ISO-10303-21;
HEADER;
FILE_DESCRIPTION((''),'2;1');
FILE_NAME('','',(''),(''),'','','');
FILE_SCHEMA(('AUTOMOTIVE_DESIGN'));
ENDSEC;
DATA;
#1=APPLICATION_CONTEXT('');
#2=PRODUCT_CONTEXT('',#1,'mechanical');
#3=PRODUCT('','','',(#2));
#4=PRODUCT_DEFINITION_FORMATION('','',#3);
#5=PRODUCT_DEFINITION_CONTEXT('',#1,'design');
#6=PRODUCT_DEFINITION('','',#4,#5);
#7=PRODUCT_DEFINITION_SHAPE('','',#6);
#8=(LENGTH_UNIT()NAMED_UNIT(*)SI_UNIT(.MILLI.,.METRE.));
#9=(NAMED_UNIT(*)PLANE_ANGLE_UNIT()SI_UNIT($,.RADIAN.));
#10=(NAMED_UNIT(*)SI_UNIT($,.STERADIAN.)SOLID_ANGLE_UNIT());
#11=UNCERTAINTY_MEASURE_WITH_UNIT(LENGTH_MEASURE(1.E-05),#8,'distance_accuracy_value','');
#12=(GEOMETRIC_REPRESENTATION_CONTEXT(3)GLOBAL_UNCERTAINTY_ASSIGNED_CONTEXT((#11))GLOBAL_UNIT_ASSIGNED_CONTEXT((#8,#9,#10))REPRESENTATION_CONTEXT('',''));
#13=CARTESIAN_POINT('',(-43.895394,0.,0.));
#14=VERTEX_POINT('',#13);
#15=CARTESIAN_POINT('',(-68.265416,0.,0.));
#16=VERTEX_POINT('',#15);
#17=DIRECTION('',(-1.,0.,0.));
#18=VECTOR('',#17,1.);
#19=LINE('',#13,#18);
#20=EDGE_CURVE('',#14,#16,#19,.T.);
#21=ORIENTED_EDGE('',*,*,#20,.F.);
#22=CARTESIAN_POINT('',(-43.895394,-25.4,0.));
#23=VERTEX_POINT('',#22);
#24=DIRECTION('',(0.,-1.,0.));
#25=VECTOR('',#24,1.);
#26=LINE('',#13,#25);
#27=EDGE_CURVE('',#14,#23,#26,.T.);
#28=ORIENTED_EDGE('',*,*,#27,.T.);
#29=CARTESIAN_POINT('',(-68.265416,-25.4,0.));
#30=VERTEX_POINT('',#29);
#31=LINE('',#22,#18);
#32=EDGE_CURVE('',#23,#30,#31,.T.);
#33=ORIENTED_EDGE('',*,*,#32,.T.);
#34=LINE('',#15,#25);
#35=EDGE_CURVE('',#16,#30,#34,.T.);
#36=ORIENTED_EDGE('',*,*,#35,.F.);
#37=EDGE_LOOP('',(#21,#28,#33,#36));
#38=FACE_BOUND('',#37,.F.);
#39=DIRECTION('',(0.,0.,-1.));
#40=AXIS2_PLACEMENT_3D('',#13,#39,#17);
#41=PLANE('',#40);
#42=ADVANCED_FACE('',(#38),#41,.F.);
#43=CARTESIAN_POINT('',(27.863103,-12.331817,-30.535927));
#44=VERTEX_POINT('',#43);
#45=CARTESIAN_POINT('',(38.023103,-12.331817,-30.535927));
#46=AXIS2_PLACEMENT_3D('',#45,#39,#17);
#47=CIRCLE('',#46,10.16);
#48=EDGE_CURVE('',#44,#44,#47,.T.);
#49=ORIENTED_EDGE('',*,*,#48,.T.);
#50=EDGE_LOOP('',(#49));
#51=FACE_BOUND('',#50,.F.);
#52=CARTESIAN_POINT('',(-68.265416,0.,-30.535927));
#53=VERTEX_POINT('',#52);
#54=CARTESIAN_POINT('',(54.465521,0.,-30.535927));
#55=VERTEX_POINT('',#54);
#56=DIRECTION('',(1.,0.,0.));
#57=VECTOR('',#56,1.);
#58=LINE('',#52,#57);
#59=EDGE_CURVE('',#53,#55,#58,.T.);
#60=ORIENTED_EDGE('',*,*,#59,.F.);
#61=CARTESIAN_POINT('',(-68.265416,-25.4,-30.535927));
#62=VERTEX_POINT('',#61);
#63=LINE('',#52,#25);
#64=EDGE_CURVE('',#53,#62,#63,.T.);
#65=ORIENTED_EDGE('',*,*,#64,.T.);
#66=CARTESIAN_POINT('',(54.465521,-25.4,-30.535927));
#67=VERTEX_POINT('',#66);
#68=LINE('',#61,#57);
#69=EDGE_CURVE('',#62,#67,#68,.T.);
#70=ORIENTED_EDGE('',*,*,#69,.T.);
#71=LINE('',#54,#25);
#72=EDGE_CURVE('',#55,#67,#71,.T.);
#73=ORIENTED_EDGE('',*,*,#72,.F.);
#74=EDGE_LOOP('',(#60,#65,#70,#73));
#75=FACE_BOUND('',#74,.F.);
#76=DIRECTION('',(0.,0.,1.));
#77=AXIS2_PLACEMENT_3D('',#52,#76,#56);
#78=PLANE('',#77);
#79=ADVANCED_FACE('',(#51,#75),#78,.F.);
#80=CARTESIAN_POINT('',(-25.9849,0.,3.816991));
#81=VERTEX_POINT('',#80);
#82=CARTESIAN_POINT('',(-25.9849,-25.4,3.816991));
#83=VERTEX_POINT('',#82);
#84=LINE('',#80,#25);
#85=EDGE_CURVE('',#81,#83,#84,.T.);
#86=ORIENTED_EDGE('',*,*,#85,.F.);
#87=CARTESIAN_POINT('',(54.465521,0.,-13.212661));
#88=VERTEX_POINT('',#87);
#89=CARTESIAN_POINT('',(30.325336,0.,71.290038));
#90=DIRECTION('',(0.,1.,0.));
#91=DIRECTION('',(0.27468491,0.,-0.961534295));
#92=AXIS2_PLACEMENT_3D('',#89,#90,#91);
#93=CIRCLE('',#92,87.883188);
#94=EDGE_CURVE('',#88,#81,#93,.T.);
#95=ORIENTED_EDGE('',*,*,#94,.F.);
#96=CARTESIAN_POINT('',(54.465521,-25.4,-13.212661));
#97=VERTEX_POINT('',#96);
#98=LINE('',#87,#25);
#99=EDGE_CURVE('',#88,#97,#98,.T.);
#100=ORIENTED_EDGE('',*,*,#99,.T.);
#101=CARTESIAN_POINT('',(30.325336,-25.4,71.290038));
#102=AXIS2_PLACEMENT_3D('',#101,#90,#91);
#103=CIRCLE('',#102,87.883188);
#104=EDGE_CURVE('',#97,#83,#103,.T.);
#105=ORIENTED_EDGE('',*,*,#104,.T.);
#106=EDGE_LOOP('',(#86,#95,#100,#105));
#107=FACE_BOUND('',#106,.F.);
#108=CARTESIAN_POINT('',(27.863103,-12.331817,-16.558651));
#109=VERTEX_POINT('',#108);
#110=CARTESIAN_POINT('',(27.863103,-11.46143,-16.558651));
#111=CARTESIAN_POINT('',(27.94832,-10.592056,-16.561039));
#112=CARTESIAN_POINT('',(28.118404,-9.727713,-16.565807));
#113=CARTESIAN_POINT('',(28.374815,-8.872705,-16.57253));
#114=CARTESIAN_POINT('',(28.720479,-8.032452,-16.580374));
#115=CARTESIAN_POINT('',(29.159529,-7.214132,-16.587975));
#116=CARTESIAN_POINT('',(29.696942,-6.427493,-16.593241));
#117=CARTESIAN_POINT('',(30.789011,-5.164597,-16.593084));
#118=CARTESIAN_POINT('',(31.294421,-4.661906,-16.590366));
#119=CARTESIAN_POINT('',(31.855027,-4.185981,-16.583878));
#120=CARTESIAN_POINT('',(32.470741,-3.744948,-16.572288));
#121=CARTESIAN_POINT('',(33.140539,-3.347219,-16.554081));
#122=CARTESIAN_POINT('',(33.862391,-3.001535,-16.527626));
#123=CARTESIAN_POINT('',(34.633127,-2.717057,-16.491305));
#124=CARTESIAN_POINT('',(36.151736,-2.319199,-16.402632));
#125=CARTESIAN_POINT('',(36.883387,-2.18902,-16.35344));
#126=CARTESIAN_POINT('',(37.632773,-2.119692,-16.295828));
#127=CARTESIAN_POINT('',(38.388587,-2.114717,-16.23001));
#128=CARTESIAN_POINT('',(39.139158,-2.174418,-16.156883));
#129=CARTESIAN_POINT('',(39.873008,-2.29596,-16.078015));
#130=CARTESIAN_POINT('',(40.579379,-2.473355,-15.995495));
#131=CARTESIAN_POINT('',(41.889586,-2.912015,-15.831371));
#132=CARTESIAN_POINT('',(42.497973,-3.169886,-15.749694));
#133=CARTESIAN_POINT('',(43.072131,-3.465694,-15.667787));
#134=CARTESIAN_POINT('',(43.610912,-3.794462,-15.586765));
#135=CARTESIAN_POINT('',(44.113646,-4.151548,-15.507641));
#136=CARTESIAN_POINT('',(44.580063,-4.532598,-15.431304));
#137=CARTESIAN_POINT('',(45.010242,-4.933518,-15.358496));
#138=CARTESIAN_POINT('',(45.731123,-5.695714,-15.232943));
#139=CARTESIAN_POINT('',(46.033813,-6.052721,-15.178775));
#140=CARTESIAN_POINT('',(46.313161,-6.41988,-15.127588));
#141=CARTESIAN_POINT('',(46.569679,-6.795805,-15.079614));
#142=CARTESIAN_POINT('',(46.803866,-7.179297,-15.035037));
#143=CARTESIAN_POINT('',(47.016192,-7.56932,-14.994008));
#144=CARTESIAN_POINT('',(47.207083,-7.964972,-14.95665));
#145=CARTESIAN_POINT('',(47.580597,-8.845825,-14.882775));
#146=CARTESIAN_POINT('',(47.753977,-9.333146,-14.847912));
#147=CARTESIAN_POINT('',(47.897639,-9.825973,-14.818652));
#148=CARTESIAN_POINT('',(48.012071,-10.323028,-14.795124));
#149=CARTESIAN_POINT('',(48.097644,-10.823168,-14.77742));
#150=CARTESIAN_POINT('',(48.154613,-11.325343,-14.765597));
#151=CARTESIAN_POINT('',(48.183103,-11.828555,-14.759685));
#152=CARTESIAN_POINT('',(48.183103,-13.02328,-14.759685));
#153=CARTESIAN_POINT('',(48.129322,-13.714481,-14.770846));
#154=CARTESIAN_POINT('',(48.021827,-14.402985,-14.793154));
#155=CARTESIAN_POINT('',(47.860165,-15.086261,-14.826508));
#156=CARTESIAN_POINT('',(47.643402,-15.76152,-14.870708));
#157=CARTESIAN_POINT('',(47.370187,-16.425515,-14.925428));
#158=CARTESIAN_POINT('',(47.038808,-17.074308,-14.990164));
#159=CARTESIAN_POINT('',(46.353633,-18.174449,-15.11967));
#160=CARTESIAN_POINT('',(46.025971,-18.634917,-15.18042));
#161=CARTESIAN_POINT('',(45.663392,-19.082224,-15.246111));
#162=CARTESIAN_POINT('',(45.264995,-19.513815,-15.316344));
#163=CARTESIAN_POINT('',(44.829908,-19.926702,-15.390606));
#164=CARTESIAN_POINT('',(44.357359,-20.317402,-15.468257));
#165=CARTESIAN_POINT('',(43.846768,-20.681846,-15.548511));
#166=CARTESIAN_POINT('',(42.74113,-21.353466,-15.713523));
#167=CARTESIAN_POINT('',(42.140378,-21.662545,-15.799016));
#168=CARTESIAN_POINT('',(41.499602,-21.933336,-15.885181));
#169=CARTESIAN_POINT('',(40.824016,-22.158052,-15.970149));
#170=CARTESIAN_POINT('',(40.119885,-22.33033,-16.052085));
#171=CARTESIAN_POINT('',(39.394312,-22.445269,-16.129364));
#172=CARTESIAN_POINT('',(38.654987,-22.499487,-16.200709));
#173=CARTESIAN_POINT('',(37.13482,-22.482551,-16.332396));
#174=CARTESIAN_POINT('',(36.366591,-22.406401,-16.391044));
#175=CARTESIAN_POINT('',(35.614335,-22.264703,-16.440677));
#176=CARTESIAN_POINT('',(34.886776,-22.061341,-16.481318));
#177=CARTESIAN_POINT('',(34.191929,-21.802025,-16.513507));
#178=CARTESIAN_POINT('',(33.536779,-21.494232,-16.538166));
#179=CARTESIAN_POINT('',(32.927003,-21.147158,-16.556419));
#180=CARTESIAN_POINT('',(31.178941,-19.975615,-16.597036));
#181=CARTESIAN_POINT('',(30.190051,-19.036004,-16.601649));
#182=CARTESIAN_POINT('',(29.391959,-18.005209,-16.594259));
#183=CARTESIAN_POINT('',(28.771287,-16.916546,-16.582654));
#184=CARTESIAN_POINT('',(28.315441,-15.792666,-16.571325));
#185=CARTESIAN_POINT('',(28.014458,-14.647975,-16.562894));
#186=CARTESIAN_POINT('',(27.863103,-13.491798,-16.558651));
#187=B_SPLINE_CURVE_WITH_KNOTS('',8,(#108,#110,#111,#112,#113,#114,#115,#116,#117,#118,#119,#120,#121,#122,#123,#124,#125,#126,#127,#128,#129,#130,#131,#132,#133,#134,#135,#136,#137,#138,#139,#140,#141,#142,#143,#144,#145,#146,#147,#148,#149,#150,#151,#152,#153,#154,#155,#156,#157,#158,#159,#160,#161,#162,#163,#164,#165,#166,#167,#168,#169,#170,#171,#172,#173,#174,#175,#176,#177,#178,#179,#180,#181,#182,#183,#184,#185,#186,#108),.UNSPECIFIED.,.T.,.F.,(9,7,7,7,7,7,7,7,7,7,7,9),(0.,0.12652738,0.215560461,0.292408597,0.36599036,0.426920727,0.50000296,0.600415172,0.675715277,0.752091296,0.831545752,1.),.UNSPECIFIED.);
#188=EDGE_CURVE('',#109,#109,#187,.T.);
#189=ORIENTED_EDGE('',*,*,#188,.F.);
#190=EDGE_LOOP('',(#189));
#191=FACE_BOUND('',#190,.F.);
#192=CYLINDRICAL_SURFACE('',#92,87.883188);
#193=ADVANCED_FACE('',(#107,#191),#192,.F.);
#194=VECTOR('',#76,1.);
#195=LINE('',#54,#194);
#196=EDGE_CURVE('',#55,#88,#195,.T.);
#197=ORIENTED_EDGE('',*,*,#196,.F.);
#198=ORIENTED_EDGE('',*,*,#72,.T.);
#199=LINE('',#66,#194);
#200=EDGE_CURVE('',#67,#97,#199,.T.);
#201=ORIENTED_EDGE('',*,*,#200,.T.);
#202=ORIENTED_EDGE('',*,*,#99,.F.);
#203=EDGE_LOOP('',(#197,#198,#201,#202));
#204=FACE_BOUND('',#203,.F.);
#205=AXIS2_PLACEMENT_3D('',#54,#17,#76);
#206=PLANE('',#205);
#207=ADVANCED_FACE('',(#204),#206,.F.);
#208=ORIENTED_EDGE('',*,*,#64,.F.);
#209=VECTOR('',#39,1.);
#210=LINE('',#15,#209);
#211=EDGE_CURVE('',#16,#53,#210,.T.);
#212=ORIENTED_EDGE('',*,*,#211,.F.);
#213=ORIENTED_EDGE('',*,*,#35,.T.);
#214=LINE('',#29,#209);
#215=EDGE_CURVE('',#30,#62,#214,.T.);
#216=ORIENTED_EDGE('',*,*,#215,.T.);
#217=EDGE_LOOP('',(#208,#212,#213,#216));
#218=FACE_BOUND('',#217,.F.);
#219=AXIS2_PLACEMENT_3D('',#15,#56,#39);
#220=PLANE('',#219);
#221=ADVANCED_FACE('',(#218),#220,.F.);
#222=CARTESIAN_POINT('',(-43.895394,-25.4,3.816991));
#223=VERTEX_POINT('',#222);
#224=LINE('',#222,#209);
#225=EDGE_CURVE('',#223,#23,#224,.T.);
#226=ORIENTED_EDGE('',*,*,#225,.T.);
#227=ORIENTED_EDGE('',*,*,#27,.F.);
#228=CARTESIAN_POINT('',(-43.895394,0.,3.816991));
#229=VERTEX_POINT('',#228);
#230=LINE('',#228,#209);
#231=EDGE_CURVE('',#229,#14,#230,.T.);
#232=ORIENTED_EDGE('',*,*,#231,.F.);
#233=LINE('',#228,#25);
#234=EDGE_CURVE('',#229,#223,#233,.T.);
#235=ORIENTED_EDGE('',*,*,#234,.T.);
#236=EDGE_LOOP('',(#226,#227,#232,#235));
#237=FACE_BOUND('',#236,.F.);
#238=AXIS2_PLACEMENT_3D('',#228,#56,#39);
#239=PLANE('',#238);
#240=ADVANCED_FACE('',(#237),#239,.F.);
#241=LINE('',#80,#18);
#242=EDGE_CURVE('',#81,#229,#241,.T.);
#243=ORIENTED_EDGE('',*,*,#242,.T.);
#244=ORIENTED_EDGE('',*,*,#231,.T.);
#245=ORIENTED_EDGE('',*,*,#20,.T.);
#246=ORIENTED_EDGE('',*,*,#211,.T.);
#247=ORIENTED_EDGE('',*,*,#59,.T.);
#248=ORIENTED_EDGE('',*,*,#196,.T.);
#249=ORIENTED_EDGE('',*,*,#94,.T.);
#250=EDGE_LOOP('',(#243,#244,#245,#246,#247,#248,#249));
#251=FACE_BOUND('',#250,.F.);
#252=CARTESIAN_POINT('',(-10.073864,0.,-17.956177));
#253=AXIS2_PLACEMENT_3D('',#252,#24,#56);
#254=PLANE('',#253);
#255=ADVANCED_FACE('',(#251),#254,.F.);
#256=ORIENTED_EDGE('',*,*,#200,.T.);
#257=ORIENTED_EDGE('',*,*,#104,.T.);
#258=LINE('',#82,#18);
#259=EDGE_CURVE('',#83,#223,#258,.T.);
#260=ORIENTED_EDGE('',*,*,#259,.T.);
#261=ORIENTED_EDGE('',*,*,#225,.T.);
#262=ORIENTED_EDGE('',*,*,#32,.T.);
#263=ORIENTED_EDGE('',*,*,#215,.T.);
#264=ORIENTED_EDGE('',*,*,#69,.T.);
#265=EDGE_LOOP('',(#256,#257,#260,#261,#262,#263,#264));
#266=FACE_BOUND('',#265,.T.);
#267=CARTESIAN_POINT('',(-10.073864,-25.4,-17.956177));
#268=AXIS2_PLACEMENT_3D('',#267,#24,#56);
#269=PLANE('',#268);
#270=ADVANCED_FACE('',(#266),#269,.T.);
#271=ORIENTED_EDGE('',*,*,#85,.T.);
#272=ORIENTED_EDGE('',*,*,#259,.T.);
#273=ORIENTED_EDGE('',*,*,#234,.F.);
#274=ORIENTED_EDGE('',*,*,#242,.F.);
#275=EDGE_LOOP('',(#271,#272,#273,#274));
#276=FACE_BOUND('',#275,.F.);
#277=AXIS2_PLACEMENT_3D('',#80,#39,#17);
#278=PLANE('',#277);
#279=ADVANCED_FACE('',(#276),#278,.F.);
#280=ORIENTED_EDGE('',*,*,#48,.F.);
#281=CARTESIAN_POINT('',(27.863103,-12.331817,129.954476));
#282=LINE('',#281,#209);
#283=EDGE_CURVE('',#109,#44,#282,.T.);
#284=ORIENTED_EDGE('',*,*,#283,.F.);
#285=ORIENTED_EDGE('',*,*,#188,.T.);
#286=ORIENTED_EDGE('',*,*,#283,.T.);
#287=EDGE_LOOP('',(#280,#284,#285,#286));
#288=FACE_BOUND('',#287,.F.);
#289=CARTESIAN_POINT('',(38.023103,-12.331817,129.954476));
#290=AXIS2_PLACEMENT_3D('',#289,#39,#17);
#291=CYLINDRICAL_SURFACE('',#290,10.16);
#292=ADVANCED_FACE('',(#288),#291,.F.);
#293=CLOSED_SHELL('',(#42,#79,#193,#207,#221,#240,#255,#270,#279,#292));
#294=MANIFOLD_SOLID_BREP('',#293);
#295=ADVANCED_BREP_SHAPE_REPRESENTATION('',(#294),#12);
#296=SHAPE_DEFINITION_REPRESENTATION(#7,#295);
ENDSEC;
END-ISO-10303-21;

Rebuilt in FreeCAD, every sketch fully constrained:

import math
import FreeCAD as App
import Part
import Sketcher
from FreeCAD import Vector
Q = App.Units.Quantity

doc = App.newDocument("Part")
body = doc.addObject("PartDesign::Body", "Body")

# Sketch on XZ plane
sketch1 = body.newObject("Sketcher::SketchObject", "Sketch")
sketch1.AttachmentSupport = (doc.getObject("XZ_Plane"), [""])
sketch1.MapMode = "FlatFace"
sketch1.addGeometry(Part.LineSegment(Vector(-68.3, 0, 0), Vector(-68.3, -30.5, 0)), False)
sketch1.addGeometry(Part.LineSegment(Vector(-68.3, -30.5, 0), Vector(54.5, -30.5, 0)), False)
sketch1.addGeometry(Part.LineSegment(Vector(54.5, -30.5, 0), Vector(54.5, -13.2, 0)), False)
sketch1.addGeometry(Part.ArcOfCircle(Part.Circle(Vector(30.3, 71.3, 0), Vector(0, 0, 1), 87.9), math.radians(-130), math.radians(-74)), False)
sketch1.addGeometry(Part.LineSegment(Vector(-26, 3.8, 0), Vector(-43.9, 3.8, 0)), False)
sketch1.addGeometry(Part.LineSegment(Vector(-43.9, 3.8, 0), Vector(-43.9, 0, 0)), False)
sketch1.addGeometry(Part.LineSegment(Vector(-43.9, 0, 0), Vector(-68.3, 0, 0)), False)
sketch1.addConstraint(Sketcher.Constraint("Coincident", 0, 2, 1, 1))
sketch1.addConstraint(Sketcher.Constraint("Coincident", 1, 2, 2, 1))
sketch1.addConstraint(Sketcher.Constraint("Coincident", 2, 2, 3, 2))
sketch1.addConstraint(Sketcher.Constraint("Coincident", 3, 1, 4, 1))
sketch1.addConstraint(Sketcher.Constraint("Coincident", 4, 2, 5, 1))
sketch1.addConstraint(Sketcher.Constraint("Coincident", 5, 2, 6, 1))
sketch1.addConstraint(Sketcher.Constraint("Coincident", 6, 2, 0, 1))
sketch1.addConstraint(Sketcher.Constraint("Vertical", 0))
sketch1.addConstraint(Sketcher.Constraint("Horizontal", 1))
sketch1.addConstraint(Sketcher.Constraint("Vertical", 2))
sketch1.addConstraint(Sketcher.Constraint("Horizontal", 4))
sketch1.addConstraint(Sketcher.Constraint("Vertical", 5))
sketch1.addConstraint(Sketcher.Constraint("Horizontal", 6))
sketch1.addConstraint(Sketcher.Constraint("PointOnObject", 5, 2, -1))
sketch1.addConstraint(Sketcher.Constraint("Radius", 3, Q("87.883188 mm")))
sketch1.addConstraint(Sketcher.Constraint("DistanceX", 6, 2, 6, 1, Q("24.370022 mm")))
sketch1.addConstraint(Sketcher.Constraint("DistanceY", 5, 2, 5, 1, Q("3.816991 mm")))
sketch1.addConstraint(Sketcher.Constraint("DistanceX", 3, 1, -1, 1, Q("25.9849 mm")))
sketch1.addConstraint(Sketcher.Constraint("DistanceY", 2, 2, 3, 3, Q("84.502699 mm")))
sketch1.addConstraint(Sketcher.Constraint("DistanceX", 1, 1, 1, 2, Q("122.730937 mm")))
sketch1.addConstraint(Sketcher.Constraint("DistanceX", 4, 2, 4, 1, Q("17.910494 mm")))
sketch1.addConstraint(Sketcher.Constraint("DistanceY", 0, 2, 0, 1, Q("30.535927 mm")))
pad1 = body.newObject("PartDesign::Pad", "Pad")
pad1.Profile = sketch1
pad1.Length = Q("1 in")

# Sketch on XY plane
sketch2 = body.newObject("Sketcher::SketchObject", "Sketch001")
sketch2.AttachmentSupport = (doc.getObject("XY_Plane"), [""])
sketch2.MapMode = "FlatFace"
sketch2.addGeometry(Part.Circle(Vector(38, -12, 0), Vector(0, 0, 1), 10), False)
sketch2.addConstraint(Sketcher.Constraint("Diameter", 0, Q("0.8 in")))
sketch2.addConstraint(Sketcher.Constraint("DistanceX", -1, 1, 0, 3, Q("38.023103 mm")))
sketch2.addConstraint(Sketcher.Constraint("DistanceY", 0, 3, -1, 1, Q("12.331817 mm")))
doc.recompute()
hole = body.newObject("PartDesign::Hole", "Hole")
hole.Profile = sketch2
hole.ThreadType = "None"
hole.Diameter = Q("0.8 in")
hole.DepthType = "ThroughAll"

doc.recompute()
